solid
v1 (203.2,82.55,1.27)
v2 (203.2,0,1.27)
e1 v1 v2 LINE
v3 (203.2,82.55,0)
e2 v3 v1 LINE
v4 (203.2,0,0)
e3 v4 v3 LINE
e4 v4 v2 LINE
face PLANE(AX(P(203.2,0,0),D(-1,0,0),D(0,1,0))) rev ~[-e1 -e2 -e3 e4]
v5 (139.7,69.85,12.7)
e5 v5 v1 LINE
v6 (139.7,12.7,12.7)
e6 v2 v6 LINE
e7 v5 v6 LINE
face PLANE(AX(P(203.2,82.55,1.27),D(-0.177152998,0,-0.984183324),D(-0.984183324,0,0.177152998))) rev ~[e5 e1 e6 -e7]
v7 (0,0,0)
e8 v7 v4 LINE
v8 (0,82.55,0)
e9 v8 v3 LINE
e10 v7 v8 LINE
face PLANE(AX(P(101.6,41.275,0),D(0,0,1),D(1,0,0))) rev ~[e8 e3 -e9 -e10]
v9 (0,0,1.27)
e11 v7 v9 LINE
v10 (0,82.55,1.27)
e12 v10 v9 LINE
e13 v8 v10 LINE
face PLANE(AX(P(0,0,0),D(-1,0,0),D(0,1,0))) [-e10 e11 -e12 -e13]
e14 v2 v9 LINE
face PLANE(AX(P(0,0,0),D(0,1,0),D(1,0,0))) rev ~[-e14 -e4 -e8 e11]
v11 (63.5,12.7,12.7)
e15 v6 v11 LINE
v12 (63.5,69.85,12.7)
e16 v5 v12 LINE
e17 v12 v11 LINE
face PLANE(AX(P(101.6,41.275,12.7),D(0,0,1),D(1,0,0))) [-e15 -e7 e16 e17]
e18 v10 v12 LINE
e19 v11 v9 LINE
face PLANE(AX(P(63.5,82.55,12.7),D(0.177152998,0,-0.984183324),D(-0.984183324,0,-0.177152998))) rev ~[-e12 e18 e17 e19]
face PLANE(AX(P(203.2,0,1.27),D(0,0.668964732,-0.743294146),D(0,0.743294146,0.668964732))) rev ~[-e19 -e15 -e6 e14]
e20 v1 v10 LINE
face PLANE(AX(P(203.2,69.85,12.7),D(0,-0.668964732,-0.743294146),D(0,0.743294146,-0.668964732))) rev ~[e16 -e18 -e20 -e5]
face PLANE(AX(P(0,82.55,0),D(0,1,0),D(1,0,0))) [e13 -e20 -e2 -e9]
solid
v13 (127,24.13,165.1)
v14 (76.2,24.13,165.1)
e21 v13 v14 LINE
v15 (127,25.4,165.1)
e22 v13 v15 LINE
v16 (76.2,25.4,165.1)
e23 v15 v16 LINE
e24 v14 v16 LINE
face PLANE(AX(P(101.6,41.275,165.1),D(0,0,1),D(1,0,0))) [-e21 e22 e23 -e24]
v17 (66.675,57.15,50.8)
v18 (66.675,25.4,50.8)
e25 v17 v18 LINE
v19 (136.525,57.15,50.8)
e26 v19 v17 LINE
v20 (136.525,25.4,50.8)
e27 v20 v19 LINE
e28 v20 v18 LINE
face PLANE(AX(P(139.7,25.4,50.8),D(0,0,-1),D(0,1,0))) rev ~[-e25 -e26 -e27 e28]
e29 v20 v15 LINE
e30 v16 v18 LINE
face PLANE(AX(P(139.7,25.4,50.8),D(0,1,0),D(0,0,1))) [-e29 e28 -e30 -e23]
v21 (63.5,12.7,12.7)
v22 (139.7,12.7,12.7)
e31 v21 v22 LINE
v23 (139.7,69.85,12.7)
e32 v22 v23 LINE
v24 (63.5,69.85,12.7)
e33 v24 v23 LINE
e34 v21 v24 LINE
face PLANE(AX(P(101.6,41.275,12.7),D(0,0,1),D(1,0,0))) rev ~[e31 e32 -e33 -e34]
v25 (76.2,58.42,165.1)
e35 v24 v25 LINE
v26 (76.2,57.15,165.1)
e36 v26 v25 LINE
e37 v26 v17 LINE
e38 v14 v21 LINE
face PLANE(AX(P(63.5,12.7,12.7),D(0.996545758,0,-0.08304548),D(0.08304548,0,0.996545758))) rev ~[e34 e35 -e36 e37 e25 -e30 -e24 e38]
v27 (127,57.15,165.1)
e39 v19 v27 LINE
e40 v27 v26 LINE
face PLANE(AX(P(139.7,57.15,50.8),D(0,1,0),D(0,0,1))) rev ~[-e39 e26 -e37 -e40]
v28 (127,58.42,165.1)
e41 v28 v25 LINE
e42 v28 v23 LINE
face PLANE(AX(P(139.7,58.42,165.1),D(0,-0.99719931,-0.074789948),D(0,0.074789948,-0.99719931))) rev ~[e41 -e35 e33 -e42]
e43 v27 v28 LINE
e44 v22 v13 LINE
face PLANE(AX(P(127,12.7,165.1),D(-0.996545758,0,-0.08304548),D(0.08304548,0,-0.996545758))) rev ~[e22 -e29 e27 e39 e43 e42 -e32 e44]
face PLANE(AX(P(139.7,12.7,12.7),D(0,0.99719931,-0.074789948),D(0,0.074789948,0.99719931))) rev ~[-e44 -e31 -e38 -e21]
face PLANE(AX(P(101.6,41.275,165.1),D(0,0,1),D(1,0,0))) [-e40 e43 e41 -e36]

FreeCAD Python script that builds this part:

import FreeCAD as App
import Part
import Sketcher
Q = App.Units.Quantity


def add_polygon(sketch, points):
    """Adds a closed chain of lines whose ends are joined by coincident constraints."""
    first, n = sketch.GeometryCount, len(points)
    for a, b in zip(points, points[1:] + points[:1]):
        sketch.addGeometry(Part.LineSegment(App.Vector(*a, 0), App.Vector(*b, 0)), False)
    for i in range(n):
        sketch.addConstraint(Sketcher.Constraint("Coincident", first + i, 2, first + (i + 1) % n, 1))

doc = App.newDocument("Part")
params = doc.addObject("Spreadsheet::Sheet", "Params")
for row, (alias, value) in enumerate([
    ("sketch1_width", "8 in"),
    ("sketch1_height", "3.25 in"),
    ("pad1_length", "0.5 in"),
    ("sketch2_width", "0.5 in"),
    ("sketch2_height", "0.45 in"),
    ("pocket1_length", "8 in"),
    ("sketch3_width", "2.5 in"),
    ("sketch3_height", "0.45 in"),
    ("pocket2_length", "3.25 in"),
    ("sketch4_width", "3 in"),
    ("sketch4_height", "2.25 in"),
    ("pad2_length", "6 in"),
    ("sketch5_height", "4.5 in"),
    ("sketch5_width", "1.25 in"),
    ("pocket3_length", "3 in"),
    ("sketch6_height", "6 in"),
    ("sketch6_width", "0.45 in"),
    ("pocket4_length", "3 in"),
    ("sketch7_height", "6 in"),
    ("sketch7_width", "0.5 in"),
    ("pocket5_length", "2.25 in"),
], start=1):
    params.set(f"A{row}", alias)
    params.set(f"B{row}", "=" + value)
    params.setAlias(f"B{row}", alias)

body = doc.addObject("PartDesign::Body", "Body")

# Sketch on XY plane
sketch1 = body.newObject("Sketcher::SketchObject", "Sketch")
sketch1.AttachmentSupport = (doc.getObject("XY_Plane"), [""])
sketch1.MapMode = "FlatFace"
add_polygon(sketch1, [(0, 82.55), (0, 0), (203.2, 0), (203.2, 82.55)])  # lines 0-3
sketch1.addConstraint([
    Sketcher.Constraint("Vertical", 0),
    Sketcher.Constraint("Horizontal", 1),
    Sketcher.Constraint("Vertical", 2),
    Sketcher.Constraint("Horizontal", 3),
    Sketcher.Constraint("Coincident", 0, 2, -1, 1),
    Sketcher.Constraint("DistanceX", 1, 1, 1, 2, Q("8 in")),
    Sketcher.Constraint("DistanceY", 0, 2, 0, 1, Q("3.25 in")),
])
sketch1.setExpression("Constraints[9]", "Params.sketch1_width")
sketch1.setExpression("Constraints[10]", "Params.sketch1_height")
pad1 = body.newObject("PartDesign::Pad", "Pad")
pad1.Profile = sketch1
pad1.setExpression("Length", "Params.pad1_length")

# Sketch on YZ plane
sketch2 = body.newObject("Sketcher::SketchObject", "Sketch001")
sketch2.AttachmentSupport = (doc.getObject("YZ_Plane"), [""])
sketch2.MapMode = "FlatFace"
sketch2.AttachmentOffset = App.Placement(App.Vector(0, 0, 8 * 25.4), App.Rotation())
add_polygon(sketch2, [(12.7, 12.7), (0, 12.7), (0, 1.27)])  # lines 0-2
add_polygon(sketch2, [(82.55, 1.27), (82.55, 12.7), (69.85, 12.7)])  # lines 3-5
sketch2.addConstraint([
    Sketcher.Constraint("Horizontal", 0),
    Sketcher.Constraint("Vertical", 1),
    Sketcher.Constraint("Vertical", 3),
    Sketcher.Constraint("Horizontal", 4),
    Sketcher.Constraint("PointOnObject", 0, 2, -2),
    Sketcher.Constraint("Horizontal", 2, 2, 3, 2),
    Sketcher.Constraint("Horizontal", 1, 2, 5, 2),
    Sketcher.Constraint("Equal", 0, 4),
    Sketcher.Constraint("DistanceX", 0, 2, 0, 1, Q("0.5 in")),
    Sketcher.Constraint("DistanceY", 1, 2, 1, 1, Q("0.45 in")),
    Sketcher.Constraint("DistanceY", -1, 1, 0, 2, Q("0.5 in")),
    Sketcher.Constraint("DistanceX", -1, 1, 3, 2, Q("3.25 in")),
])
sketch2.setExpression("Constraints[14]", "Params.sketch2_width")
sketch2.setExpression("Constraints[15]", "Params.sketch2_height")
pocket1 = body.newObject("PartDesign::Pocket", "Pocket")
pocket1.Profile = sketch2
pocket1.setExpression("Length", "Params.pocket1_length")

# Sketch on XZ plane
sketch3 = body.newObject("Sketcher::SketchObject", "Sketch002")
sketch3.AttachmentSupport = (doc.getObject("XZ_Plane"), [""])
sketch3.MapMode = "FlatFace"
sketch3.AttachmentOffset = App.Placement(App.Vector(0, 0, -3.25 * 25.4), App.Rotation())
add_polygon(sketch3, [(203.2, 12.7), (203.2, 1.27), (139.7, 12.7)])  # lines 0-2
add_polygon(sketch3, [(63.5, 12.7), (0, 1.27), (0, 12.7)])  # lines 3-5
sketch3.addConstraint([
    Sketcher.Constraint("Vertical", 0),
    Sketcher.Constraint("Horizontal", 2),
    Sketcher.Constraint("Vertical", 4),
    Sketcher.Constraint("Horizontal", 5),
    Sketcher.Constraint("PointOnObject", 3, 2, -2),
    Sketcher.Constraint("Horizontal", 0, 2, 3, 2),
    Sketcher.Constraint("Horizontal", 2, 2, 4, 2),
    Sketcher.Constraint("Equal", 2, 5),
    Sketcher.Constraint("DistanceX", 2, 1, 2, 2, Q("2.5 in")),
    Sketcher.Constraint("DistanceX", -1, 1, 0, 2, Q("8 in")),
    Sketcher.Constraint("DistanceY", 0, 2, 0, 1, Q("0.45 in")),
    Sketcher.Constraint("DistanceY", -1, 1, 1, 2, Q("0.5 in")),
])
sketch3.setExpression("Constraints[14]", "Params.sketch3_width")
sketch3.setExpression("Constraints[16]", "Params.sketch3_height")
pocket2 = body.newObject("PartDesign::Pocket", "Pocket001")
pocket2.Profile = sketch3
pocket2.setExpression("Length", "Params.pocket2_length")
pocket2.Reversed = True
body2 = doc.addObject("PartDesign::Body", "Body001")

# Sketch on XY plane
sketch4 = body2.newObject("Sketcher::SketchObject", "Sketch003")
sketch4.AttachmentSupport = (doc.getObject("XY_Plane001"), [""])
sketch4.MapMode = "FlatFace"
sketch4.AttachmentOffset = App.Placement(App.Vector(0, 0, 0.5 * 25.4), App.Rotation())
add_polygon(sketch4, [(63.5, 69.85), (63.5, 12.7), (139.7, 12.7), (139.7, 69.85)])  # lines 0-3
sketch4.addConstraint([
    Sketcher.Constraint("Vertical", 0),
    Sketcher.Constraint("Horizontal", 1),
    Sketcher.Constraint("Vertical", 2),
    Sketcher.Constraint("Horizontal", 3),
    Sketcher.Constraint("DistanceX", 1, 1, 1, 2, Q("3 in")),
    Sketcher.Constraint("DistanceY", 0, 2, 0, 1, Q("2.25 in")),
    Sketcher.Constraint("DistanceX", -1, 1, 0, 2, Q("2.5 in")),
    Sketcher.Constraint("DistanceY", -1, 1, 0, 2, Q("0.5 in")),
])
sketch4.setExpression("Constraints[8]", "Params.sketch4_width")
sketch4.setExpression("Constraints[9]", "Params.sketch4_height")
pad2 = body2.newObject("PartDesign::Pad", "Pad001")
pad2.Profile = sketch4
pad2.setExpression("Length", "Params.pad2_length")

# Sketch on YZ plane
sketch5 = body2.newObject("Sketcher::SketchObject", "Sketch004")
sketch5.AttachmentSupport = (doc.getObject("YZ_Plane001"), [""])
sketch5.MapMode = "FlatFace"
sketch5.AttachmentOffset = App.Placement(App.Vector(0, 0, 5.5 * 25.4), App.Rotation())
add_polygon(sketch5, [(25.4, 165.1), (25.4, 50.8), (57.15, 50.8), (57.15, 165.1)])  # lines 0-3
sketch5.addConstraint([
    Sketcher.Constraint("Vertical", 0),
    Sketcher.Constraint("Horizontal", 1),
    Sketcher.Constraint("Vertical", 2),
    Sketcher.Constraint("Horizontal", 3),
    Sketcher.Constraint("DistanceY", 0, 2, 0, 1, Q("4.5 in")),
    Sketcher.Constraint("DistanceX", -1, 1, 0, 2, Q("1 in")),
    Sketcher.Constraint("DistanceY", -1, 1, 0, 2, Q("2 in")),
    Sketcher.Constraint("DistanceX", 1, 1, 1, 2, Q("1.25 in")),
])
sketch5.setExpression("Constraints[8]", "Params.sketch5_height")
sketch5.setExpression("Constraints[11]", "Params.sketch5_width")
pocket3 = body2.newObject("PartDesign::Pocket", "Pocket002")
pocket3.Profile = sketch5
pocket3.setExpression("Length", "Params.pocket3_length")

# Sketch on YZ plane
sketch6 = body2.newObject("Sketcher::SketchObject", "Sketch005")
sketch6.AttachmentSupport = (doc.getObject("YZ_Plane001"), [""])
sketch6.MapMode = "FlatFace"
sketch6.AttachmentOffset = App.Placement(App.Vector(0, 0, 5.5 * 25.4), App.Rotation())
add_polygon(sketch6, [(12.7, 165.1), (12.7, 12.7), (24.13, 165.1)])  # lines 0-2
add_polygon(sketch6, [(58.42, 165.1), (69.85, 12.7), (69.85, 165.1)])  # lines 3-5
sketch6.addConstraint([
    Sketcher.Constraint("Vertical", 0),
    Sketcher.Constraint("Horizontal", 2),
    Sketcher.Constraint("Vertical", 4),
    Sketcher.Constraint("Horizontal", 5),
    Sketcher.Constraint("Horizontal", 0, 2, 3, 2),
    Sketcher.Constraint("Horizontal", 2, 2, 4, 2),
    Sketcher.Constraint("Equal", 2, 5),
    Sketcher.Constraint("DistanceY", 0, 2, 0, 1, Q("6 in")),
    Sketcher.Constraint("DistanceX", 2, 2, 2, 1, Q("0.45 in")),
    Sketcher.Constraint("DistanceX", -1, 1, 0, 2, Q("0.5 in")),
    Sketcher.Constraint("DistanceY", -1, 1, 0, 2, Q("0.5 in")),
    Sketcher.Constraint("DistanceX", -1, 1, 5, 2, Q("2.3 in")),
])
sketch6.setExpression("Constraints[13]", "Params.sketch6_height")
sketch6.setExpression("Constraints[14]", "Params.sketch6_width")
pocket4 = body2.newObject("PartDesign::Pocket", "Pocket003")
pocket4.Profile = sketch6
pocket4.setExpression("Length", "Params.pocket4_length")

# Sketch on XZ plane
sketch7 = body2.newObject("Sketcher::SketchObject", "Sketch006")
sketch7.AttachmentSupport = (doc.getObject("XZ_Plane001"), [""])
sketch7.MapMode = "FlatFace"
sketch7.AttachmentOffset = App.Placement(App.Vector(0, 0, -0.5 * 25.4), App.Rotation())
add_polygon(sketch7, [(76.2, 165.1), (63.5, 165.1), (63.5, 12.7)])  # lines 0-2
add_polygon(sketch7, [(139.7, 12.7), (139.7, 165.1), (127, 165.1)])  # lines 3-5
sketch7.addConstraint([
    Sketcher.Constraint("Horizontal", 0),
    Sketcher.Constraint("Vertical", 1),
    Sketcher.Constraint("Vertical", 3),
    Sketcher.Constraint("Horizontal", 4),
    Sketcher.Constraint("Horizontal", 2, 2, 3, 2),
    Sketcher.Constraint("Horizontal", 1, 2, 5, 2),
    Sketcher.Constraint("Equal", 0, 4),
    Sketcher.Constraint("DistanceY", 1, 2, 1, 1, Q("6 in")),
    Sketcher.Constraint("DistanceX", 0, 2, 0, 1, Q("0.5 in")),
    Sketcher.Constraint("DistanceX", -1, 1, 2, 2, Q("3 in")),
    Sketcher.Constraint("DistanceX", -1, 1, 4, 2, Q("5 in")),
    Sketcher.Constraint("DistanceY", -1, 1, 0, 2, Q("6.5 in")),
])
sketch7.setExpression("Constraints[13]", "Params.sketch7_height")
sketch7.setExpression("Constraints[14]", "Params.sketch7_width")
pocket5 = body2.newObject("PartDesign::Pocket", "Pocket004")
pocket5.Profile = sketch7
pocket5.setExpression("Length", "Params.pocket5_length")

doc.recompute()
